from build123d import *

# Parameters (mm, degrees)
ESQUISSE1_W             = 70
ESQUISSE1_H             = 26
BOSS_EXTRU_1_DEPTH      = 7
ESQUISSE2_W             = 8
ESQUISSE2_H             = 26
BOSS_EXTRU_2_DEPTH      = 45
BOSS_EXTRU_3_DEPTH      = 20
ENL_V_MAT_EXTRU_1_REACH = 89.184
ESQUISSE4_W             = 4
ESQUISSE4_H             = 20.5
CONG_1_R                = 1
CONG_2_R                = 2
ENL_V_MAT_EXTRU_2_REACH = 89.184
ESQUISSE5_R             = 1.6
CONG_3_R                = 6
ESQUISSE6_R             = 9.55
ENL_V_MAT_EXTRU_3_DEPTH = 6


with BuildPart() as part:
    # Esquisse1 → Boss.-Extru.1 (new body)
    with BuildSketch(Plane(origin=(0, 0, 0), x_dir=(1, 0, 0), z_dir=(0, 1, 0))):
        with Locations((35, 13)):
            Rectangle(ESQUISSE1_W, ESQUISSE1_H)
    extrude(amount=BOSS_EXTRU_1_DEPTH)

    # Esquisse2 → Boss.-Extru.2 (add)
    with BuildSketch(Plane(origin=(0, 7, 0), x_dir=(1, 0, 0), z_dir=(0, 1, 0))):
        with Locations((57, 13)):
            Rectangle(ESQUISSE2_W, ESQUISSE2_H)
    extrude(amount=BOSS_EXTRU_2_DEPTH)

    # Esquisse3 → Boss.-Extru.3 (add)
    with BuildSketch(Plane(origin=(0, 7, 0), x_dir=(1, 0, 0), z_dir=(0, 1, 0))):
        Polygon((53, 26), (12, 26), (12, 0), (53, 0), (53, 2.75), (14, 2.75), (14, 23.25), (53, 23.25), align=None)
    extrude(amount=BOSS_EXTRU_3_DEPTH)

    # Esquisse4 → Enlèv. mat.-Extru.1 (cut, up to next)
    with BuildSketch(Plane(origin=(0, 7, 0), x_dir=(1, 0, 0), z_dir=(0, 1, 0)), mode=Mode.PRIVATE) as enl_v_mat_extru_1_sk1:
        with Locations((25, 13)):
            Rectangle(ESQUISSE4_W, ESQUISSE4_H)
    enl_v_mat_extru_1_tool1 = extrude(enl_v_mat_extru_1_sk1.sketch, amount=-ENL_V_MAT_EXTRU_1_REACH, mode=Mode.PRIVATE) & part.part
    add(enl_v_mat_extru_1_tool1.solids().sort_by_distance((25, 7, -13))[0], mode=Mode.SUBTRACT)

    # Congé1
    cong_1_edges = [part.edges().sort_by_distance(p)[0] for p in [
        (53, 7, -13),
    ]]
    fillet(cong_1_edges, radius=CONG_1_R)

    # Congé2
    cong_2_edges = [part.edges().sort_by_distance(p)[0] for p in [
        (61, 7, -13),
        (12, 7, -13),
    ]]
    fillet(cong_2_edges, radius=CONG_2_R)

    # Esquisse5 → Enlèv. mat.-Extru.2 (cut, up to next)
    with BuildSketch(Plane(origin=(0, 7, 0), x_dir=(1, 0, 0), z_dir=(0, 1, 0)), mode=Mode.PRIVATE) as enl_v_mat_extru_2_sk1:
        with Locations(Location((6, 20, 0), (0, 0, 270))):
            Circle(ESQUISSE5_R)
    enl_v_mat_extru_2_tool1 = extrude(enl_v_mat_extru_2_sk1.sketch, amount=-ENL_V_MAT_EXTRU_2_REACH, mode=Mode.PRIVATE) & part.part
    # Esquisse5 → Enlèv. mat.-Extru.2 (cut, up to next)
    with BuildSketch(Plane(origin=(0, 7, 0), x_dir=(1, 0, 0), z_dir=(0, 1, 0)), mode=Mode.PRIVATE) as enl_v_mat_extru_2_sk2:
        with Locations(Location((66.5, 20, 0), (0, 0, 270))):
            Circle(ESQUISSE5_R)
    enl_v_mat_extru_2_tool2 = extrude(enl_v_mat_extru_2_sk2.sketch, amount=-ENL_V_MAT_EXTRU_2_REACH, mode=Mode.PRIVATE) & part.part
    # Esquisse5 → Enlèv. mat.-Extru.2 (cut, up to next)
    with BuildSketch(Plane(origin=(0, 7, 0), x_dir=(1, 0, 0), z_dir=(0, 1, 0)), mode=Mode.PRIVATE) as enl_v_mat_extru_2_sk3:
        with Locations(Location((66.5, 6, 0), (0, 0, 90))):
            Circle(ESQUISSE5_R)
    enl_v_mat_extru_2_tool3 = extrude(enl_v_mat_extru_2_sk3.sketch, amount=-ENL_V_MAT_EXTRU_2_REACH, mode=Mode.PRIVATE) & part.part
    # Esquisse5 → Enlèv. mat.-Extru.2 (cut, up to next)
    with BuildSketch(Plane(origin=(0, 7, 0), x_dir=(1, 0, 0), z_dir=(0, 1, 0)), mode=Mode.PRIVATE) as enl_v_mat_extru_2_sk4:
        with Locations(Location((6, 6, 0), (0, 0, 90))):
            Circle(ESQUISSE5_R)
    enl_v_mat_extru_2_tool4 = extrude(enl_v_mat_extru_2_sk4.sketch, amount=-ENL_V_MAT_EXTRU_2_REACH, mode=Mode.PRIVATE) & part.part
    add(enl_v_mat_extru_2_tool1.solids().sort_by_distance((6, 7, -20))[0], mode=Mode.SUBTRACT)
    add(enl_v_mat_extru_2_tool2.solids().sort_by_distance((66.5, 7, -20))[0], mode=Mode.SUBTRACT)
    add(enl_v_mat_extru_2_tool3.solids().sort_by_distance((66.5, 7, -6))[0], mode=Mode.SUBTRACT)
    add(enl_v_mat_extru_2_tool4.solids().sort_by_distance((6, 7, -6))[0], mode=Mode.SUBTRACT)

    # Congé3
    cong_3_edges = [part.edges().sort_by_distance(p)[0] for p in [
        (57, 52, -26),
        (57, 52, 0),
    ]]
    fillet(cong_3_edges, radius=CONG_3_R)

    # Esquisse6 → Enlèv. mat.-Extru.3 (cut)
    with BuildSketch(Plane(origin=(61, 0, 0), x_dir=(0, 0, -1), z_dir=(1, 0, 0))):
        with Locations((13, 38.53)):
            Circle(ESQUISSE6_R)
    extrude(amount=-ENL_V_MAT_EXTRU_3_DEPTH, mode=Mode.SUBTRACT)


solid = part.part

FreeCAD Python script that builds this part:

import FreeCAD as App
import Part
import Sketcher

V = App.Vector


def edges_at(feature, points):
    """Names of the edges that pass closest to the given points."""
    edges = feature.Shape.Edges
    near = lambda p: min(range(len(edges)), key=lambda i: edges[i].distToShape(Part.Vertex(*p))[0])
    return sorted({f"Edge{near(p) + 1}" for p in points})

doc = App.newDocument("Part")
body = doc.addObject("PartDesign::Body", "Body")

# Sketch on XZ plane
sketch1 = doc.addObject("Sketcher::SketchObject", "Sketch")
body.addObject(sketch1)
sketch1.AttachmentSupport = (doc.XZ_Plane, [""])
sketch1.MapMode = "FlatFace"
sketch1.addGeometry(Part.LineSegment(V(0, -26, 0), V(0, 0, 0)), False)
sketch1.addGeometry(Part.LineSegment(V(0, 0, 0), V(70, 0, 0)), False)
sketch1.addGeometry(Part.LineSegment(V(70, 0, 0), V(70, -26, 0)), False)
sketch1.addGeometry(Part.LineSegment(V(70, -26, 0), V(0, -26, 0)), False)
sketch1.addConstraint(Sketcher.Constraint("Coincident", 0, 2, 1, 1))
sketch1.addConstraint(Sketcher.Constraint("Coincident", 1, 2, 2, 1))
sketch1.addConstraint(Sketcher.Constraint("Coincident", 2, 2, 3, 1))
sketch1.addConstraint(Sketcher.Constraint("Coincident", 3, 2, 0, 1))
sketch1.addConstraint(Sketcher.Constraint("Vertical", 0))
sketch1.addConstraint(Sketcher.Constraint("Horizontal", 1))
sketch1.addConstraint(Sketcher.Constraint("Vertical", 2))
sketch1.addConstraint(Sketcher.Constraint("Horizontal", 3))
sketch1.addConstraint(Sketcher.Constraint("Coincident", 0, 2, -1, 1))
sketch1.addConstraint(Sketcher.Constraint("DistanceX", 1, 1, 1, 2, 70.0))
sketch1.addConstraint(Sketcher.Constraint("DistanceY", 0, 1, 0, 2, 26.0))
pad1 = doc.addObject("PartDesign::Pad", "Pad")
body.addObject(pad1)
pad1.Profile = sketch1
pad1.Length = 7
pad1.Reversed = True

# Sketch on XZ plane
sketch2 = doc.addObject("Sketcher::SketchObject", "Sketch001")
body.addObject(sketch2)
sketch2.AttachmentSupport = (doc.XZ_Plane, [""])
sketch2.MapMode = "FlatFace"
sketch2.AttachmentOffset = App.Placement(V(0, 0, -7), App.Rotation())
sketch2.addGeometry(Part.LineSegment(V(53, -26, 0), V(53, 0, 0)), False)
sketch2.addGeometry(Part.LineSegment(V(53, 0, 0), V(61, 0, 0)), False)
sketch2.addGeometry(Part.LineSegment(V(61, 0, 0), V(61, -26, 0)), False)
sketch2.addGeometry(Part.LineSegment(V(61, -26, 0), V(53, -26, 0)), False)
sketch2.addConstraint(Sketcher.Constraint("Coincident", 0, 2, 1, 1))
sketch2.addConstraint(Sketcher.Constraint("Coincident", 1, 2, 2, 1))
sketch2.addConstraint(Sketcher.Constraint("Coincident", 2, 2, 3, 1))
sketch2.addConstraint(Sketcher.Constraint("Coincident", 3, 2, 0, 1))
sketch2.addConstraint(Sketcher.Constraint("Vertical", 0))
sketch2.addConstraint(Sketcher.Constraint("Horizontal", 1))
sketch2.addConstraint(Sketcher.Constraint("Vertical", 2))
sketch2.addConstraint(Sketcher.Constraint("Horizontal", 3))
sketch2.addConstraint(Sketcher.Constraint("PointOnObject", 0, 2, -1))
sketch2.addConstraint(Sketcher.Constraint("DistanceX", 1, 1, 1, 2, 8.0))
sketch2.addConstraint(Sketcher.Constraint("DistanceY", 0, 1, 0, 2, 26.0))
sketch2.addConstraint(Sketcher.Constraint("DistanceX", -1, 1, 0, 2, 53.0))
pad2 = doc.addObject("PartDesign::Pad", "Pad001")
body.addObject(pad2)
pad2.Profile = sketch2
pad2.Length = 45
pad2.Reversed = True

# Sketch on XZ plane
sketch3 = doc.addObject("Sketcher::SketchObject", "Sketch002")
body.addObject(sketch3)
sketch3.AttachmentSupport = (doc.XZ_Plane, [""])
sketch3.MapMode = "FlatFace"
sketch3.AttachmentOffset = App.Placement(V(0, 0, -7), App.Rotation())
sketch3.addGeometry(Part.LineSegment(V(53, -26, 0), V(12, -26, 0)), False)
sketch3.addGeometry(Part.LineSegment(V(12, -26, 0), V(12, 0, 0)), False)
sketch3.addGeometry(Part.LineSegment(V(12, 0, 0), V(53, 0, 0)), False)
sketch3.addGeometry(Part.LineSegment(V(53, 0, 0), V(53, -2.8, 0)), False)
sketch3.addGeometry(Part.LineSegment(V(53, -2.8, 0), V(14, -2.8, 0)), False)
sketch3.addGeometry(Part.LineSegment(V(14, -2.8, 0), V(14, -23.2, 0)), False)
sketch3.addGeometry(Part.LineSegment(V(14, -23.2, 0), V(53, -23.2, 0)), False)
sketch3.addGeometry(Part.LineSegment(V(53, -23.2, 0), V(53, -26, 0)), False)
sketch3.addConstraint(Sketcher.Constraint("Coincident", 0, 2, 1, 1))
sketch3.addConstraint(Sketcher.Constraint("Coincident", 1, 2, 2, 1))
sketch3.addConstraint(Sketcher.Constraint("Coincident", 2, 2, 3, 1))
sketch3.addConstraint(Sketcher.Constraint("Coincident", 3, 2, 4, 1))
sketch3.addConstraint(Sketcher.Constraint("Coincident", 4, 2, 5, 1))
sketch3.addConstraint(Sketcher.Constraint("Coincident", 5, 2, 6, 1))
sketch3.addConstraint(Sketcher.Constraint("Coincident", 6, 2, 7, 1))
sketch3.addConstraint(Sketcher.Constraint("Coincident", 7, 2, 0, 1))
sketch3.addConstraint(Sketcher.Constraint("Horizontal", 0))
sketch3.addConstraint(Sketcher.Constraint("Vertical", 1))
sketch3.addConstraint(Sketcher.Constraint("Horizontal", 2))
sketch3.addConstraint(Sketcher.Constraint("Vertical", 3))
sketch3.addConstraint(Sketcher.Constraint("Horizontal", 4))
sketch3.addConstraint(Sketcher.Constraint("Vertical", 5))
sketch3.addConstraint(Sketcher.Constraint("Horizontal", 6))
sketch3.addConstraint(Sketcher.Constraint("Vertical", 7))
sketch3.addConstraint(Sketcher.Constraint("PointOnObject", 1, 2, -1))
sketch3.addConstraint(Sketcher.Constraint("Vertical", 3, 2, 6, 2))
sketch3.addConstraint(Sketcher.Constraint("Equal", 3, 7))
sketch3.addConstraint(Sketcher.Constraint("DistanceX", 0, 2, 0, 1, 41.0))
sketch3.addConstraint(Sketcher.Constraint("DistanceX", 4, 2, 4, 1, 39.0))
sketch3.addConstraint(Sketcher.Constraint("DistanceY", 1, 1, 1, 2, 26.0))
sketch3.addConstraint(Sketcher.Constraint("DistanceY", 5, 2, 5, 1, 20.5))
sketch3.addConstraint(Sketcher.Constraint("DistanceX", -1, 1, 0, 2, 12.0))
pad3 = doc.addObject("PartDesign::Pad", "Pad002")
body.addObject(pad3)
pad3.Profile = sketch3
pad3.Length = 20
pad3.Reversed = True

# Sketch on XZ plane
sketch4 = doc.addObject("Sketcher::SketchObject", "Sketch003")
body.addObject(sketch4)
sketch4.AttachmentSupport = (doc.XZ_Plane, [""])
sketch4.MapMode = "FlatFace"
sketch4.AttachmentOffset = App.Placement(V(0, 0, -7), App.Rotation())
sketch4.addGeometry(Part.LineSegment(V(23, -23.2, 0), V(23, -2.8, 0)), False)
sketch4.addGeometry(Part.LineSegment(V(23, -2.8, 0), V(27, -2.8, 0)), False)
sketch4.addGeometry(Part.LineSegment(V(27, -2.8, 0), V(27, -23.2, 0)), False)
sketch4.addGeometry(Part.LineSegment(V(27, -23.2, 0), V(23, -23.2, 0)), False)
sketch4.addConstraint(Sketcher.Constraint("Coincident", 0, 2, 1, 1))
sketch4.addConstraint(Sketcher.Constraint("Coincident", 1, 2, 2, 1))
sketch4.addConstraint(Sketcher.Constraint("Coincident", 2, 2, 3, 1))
sketch4.addConstraint(Sketcher.Constraint("Coincident", 3, 2, 0, 1))
sketch4.addConstraint(Sketcher.Constraint("Vertical", 0))
sketch4.addConstraint(Sketcher.Constraint("Horizontal", 1))
sketch4.addConstraint(Sketcher.Constraint("Vertical", 2))
sketch4.addConstraint(Sketcher.Constraint("Horizontal", 3))
sketch4.addConstraint(Sketcher.Constraint("DistanceX", 1, 1, 1, 2, 4.0))
sketch4.addConstraint(Sketcher.Constraint("DistanceY", 0, 1, 0, 2, 20.5))
sketch4.addConstraint(Sketcher.Constraint("DistanceX", -1, 1, 0, 2, 23.0))
sketch4.addConstraint(Sketcher.Constraint("DistanceY", 0, 2, -1, 1, 2.75))
pocket1 = doc.addObject("PartDesign::Pocket", "Pocket")
body.addObject(pocket1)
pocket1.Profile = sketch4
pocket1.Type = "UpToFirst"
pocket1.Reversed = True
doc.recompute()

fillet = doc.addObject("PartDesign::Fillet", "Fillet")
body.addObject(fillet)
fillet.Base = (pocket1, edges_at(pocket1, [(53, 7, -13)]))
fillet.Radius = 1
doc.recompute()

fillet2 = doc.addObject("PartDesign::Fillet", "Fillet001")
body.addObject(fillet2)
fillet2.Base = (fillet, edges_at(fillet, [(61, 7, -13), (12, 7, -13)]))
fillet2.Radius = 2

# Sketch on XZ plane
sketch5 = doc.addObject("Sketcher::SketchObject", "Sketch004")
body.addObject(sketch5)
sketch5.AttachmentSupport = (doc.XZ_Plane, [""])
sketch5.MapMode = "FlatFace"
sketch5.AttachmentOffset = App.Placement(V(0, 0, -7), App.Rotation())
sketch5.addGeometry(Part.Circle(V(6, -20, 0), V(0, 0, 1), 1.6), False)
sketch5.addConstraint(Sketcher.Constraint("Diameter", 0, 3.2))
sketch5.addConstraint(Sketcher.Constraint("DistanceX", -1, 1, 0, 3, 6.0))
sketch5.addConstraint(Sketcher.Constraint("DistanceY", 0, 3, -1, 1, 20.0))
pocket2 = doc.addObject("PartDesign::Pocket", "Pocket001")
body.addObject(pocket2)
pocket2.Profile = sketch5
pocket2.Type = "UpToFirst"
pocket2.Reversed = True

# Sketch on XZ plane
sketch6 = doc.addObject("Sketcher::SketchObject", "Sketch005")
body.addObject(sketch6)
sketch6.AttachmentSupport = (doc.XZ_Plane, [""])
sketch6.MapMode = "FlatFace"
sketch6.AttachmentOffset = App.Placement(V(0, 0, -7), App.Rotation())
sketch6.addGeometry(Part.Circle(V(66.5, -20, 0), V(0, 0, 1), 1.6), False)
sketch6.addConstraint(Sketcher.Constraint("Diameter", 0, 3.2))
sketch6.addConstraint(Sketcher.Constraint("DistanceY", 0, 3, -1, 1, 20.0))
sketch6.addConstraint(Sketcher.Constraint("DistanceX", -1, 1, 0, 3, 66.5))
pocket3 = doc.addObject("PartDesign::Pocket", "Pocket002")
body.addObject(pocket3)
pocket3.Profile = sketch6
pocket3.Type = "UpToFirst"
pocket3.Reversed = True

# Sketch on XZ plane
sketch7 = doc.addObject("Sketcher::SketchObject", "Sketch006")
body.addObject(sketch7)
sketch7.AttachmentSupport = (doc.XZ_Plane, [""])
sketch7.MapMode = "FlatFace"
sketch7.AttachmentOffset = App.Placement(V(0, 0, -7), App.Rotation())
sketch7.addGeometry(Part.Circle(V(66.5, -6, 0), V(0, 0, 1), 1.6), False)
sketch7.addConstraint(Sketcher.Constraint("Diameter", 0, 3.2))
sketch7.addConstraint(Sketcher.Constraint("DistanceY", 0, 3, -1, 1, 6.0))
sketch7.addConstraint(Sketcher.Constraint("DistanceX", -1, 1, 0, 3, 66.5))
pocket4 = doc.addObject("PartDesign::Pocket", "Pocket003")
body.addObject(pocket4)
pocket4.Profile = sketch7
pocket4.Type = "UpToFirst"
pocket4.Reversed = True

# Sketch on XZ plane
sketch8 = doc.addObject("Sketcher::SketchObject", "Sketch007")
body.addObject(sketch8)
sketch8.AttachmentSupport = (doc.XZ_Plane, [""])
sketch8.MapMode = "FlatFace"
sketch8.AttachmentOffset = App.Placement(V(0, 0, -7), App.Rotation())
sketch8.addGeometry(Part.Circle(V(6, -6, 0), V(0, 0, 1), 1.6), False)
sketch8.addConstraint(Sketcher.Constraint("Diameter", 0, 3.2))
sketch8.addConstraint(Sketcher.Constraint("DistanceX", -1, 1, 0, 3, 6.0))
sketch8.addConstraint(Sketcher.Constraint("DistanceY", 0, 3, -1, 1, 6.0))
pocket5 = doc.addObject("PartDesign::Pocket", "Pocket004")
body.addObject(pocket5)
pocket5.Profile = sketch8
pocket5.Type = "UpToFirst"
pocket5.Reversed = True
doc.recompute()

fillet3 = doc.addObject("PartDesign::Fillet", "Fillet002")
body.addObject(fillet3)
fillet3.Base = (pocket5, edges_at(pocket5, [(57, 52, -26), (57, 52, 0)]))
fillet3.Radius = 6

# Sketch on YZ plane
sketch9 = doc.addObject("Sketcher::SketchObject", "Sketch008")
body.addObject(sketch9)
sketch9.AttachmentSupport = (doc.YZ_Plane, [""])
sketch9.MapMode = "FlatFace"
sketch9.AttachmentOffset = App.Placement(V(0, 0, 61), App.Rotation())
sketch9.addGeometry(Part.Circle(V(39, -13, 0), V(0, 0, 1), 10), False)
sketch9.addConstraint(Sketcher.Constraint("Diameter", 0, 19.1))
sketch9.addConstraint(Sketcher.Constraint("DistanceY", 0, 3, -1, 1, 13.0))
sketch9.addConstraint(Sketcher.Constraint("DistanceX", -1, 1, 0, 3, 38.53))
pocket6 = doc.addObject("PartDesign::Pocket", "Pocket005")
body.addObject(pocket6)
pocket6.Profile = sketch9
pocket6.Length = 6

doc.recompute()
